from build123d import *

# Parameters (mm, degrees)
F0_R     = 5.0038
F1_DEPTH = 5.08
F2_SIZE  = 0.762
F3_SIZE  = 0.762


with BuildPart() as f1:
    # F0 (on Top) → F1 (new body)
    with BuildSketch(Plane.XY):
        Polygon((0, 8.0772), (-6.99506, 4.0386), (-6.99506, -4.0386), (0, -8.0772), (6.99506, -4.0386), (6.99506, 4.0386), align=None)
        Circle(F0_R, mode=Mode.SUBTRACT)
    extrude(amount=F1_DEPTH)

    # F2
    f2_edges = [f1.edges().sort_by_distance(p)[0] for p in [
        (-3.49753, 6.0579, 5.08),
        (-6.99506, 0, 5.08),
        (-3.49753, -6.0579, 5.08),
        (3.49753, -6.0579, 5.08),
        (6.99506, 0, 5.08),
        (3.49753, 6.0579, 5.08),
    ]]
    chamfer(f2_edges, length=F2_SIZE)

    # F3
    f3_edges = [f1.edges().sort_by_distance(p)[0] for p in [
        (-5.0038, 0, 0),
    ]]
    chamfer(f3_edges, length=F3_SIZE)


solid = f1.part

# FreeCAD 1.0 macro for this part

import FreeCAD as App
import Part
import Sketcher
Q = App.Units.Quantity


def edges_at(feature, points):
    """Names of the edges that pass closest to the given points."""
    edges = feature.Shape.Edges
    near = lambda p: min(range(len(edges)), key=lambda i: edges[i].distToShape(Part.Vertex(*p))[0])
    return sorted({f"Edge{near(p) + 1}" for p in points})


def add_polygon(sketch, points):
    """Adds a closed chain of lines whose ends are joined by coincident constraints."""
    first, n = sketch.GeometryCount, len(points)
    for a, b in zip(points, points[1:] + points[:1]):
        sketch.addGeometry(Part.LineSegment(App.Vector(*a, 0), App.Vector(*b, 0)), False)
    for i in range(n):
        sketch.addConstraint(Sketcher.Constraint("Coincident", first + i, 2, first + (i + 1) % n, 1))

doc = App.newDocument("Part")
body = doc.addObject("PartDesign::Body", "Body")

# Sketch on XY plane
sketch1 = doc.addObject("Sketcher::SketchObject", "Sketch")
body.addObject(sketch1)
sketch1.AttachmentSupport = (doc.XY_Plane, [""])
sketch1.MapMode = "FlatFace"
add_polygon(sketch1, [(0, 8), (-7, 4), (-7, -4), (0, -8), (7, -4), (7, 4)])  # lines 0-5
sketch1.addGeometry(Part.Circle(App.Vector(0, 0, 0), App.Vector(0, 0, 1), 5), False)  # 6
sketch1.addConstraint([
    Sketcher.Constraint("Vertical", 1),
    Sketcher.Constraint("Vertical", 4),
    Sketcher.Constraint("Coincident", 6, 3, -1, 1),
    Sketcher.Constraint("Symmetric", 0, 2, 3, 2, -1, 1),
    Sketcher.Constraint("Symmetric", 2, 2, 5, 2, -1, 1),
    Sketcher.Constraint("PointOnObject", 2, 2, -2),
    Sketcher.Constraint("Parallel", 2, 5),
    Sketcher.Constraint("Horizontal", 1, 2, 3, 2),
    Sketcher.Constraint("Diameter", 6, Q("0.394 in")),
    Sketcher.Constraint("Angle", 0, Q("-149.999999 deg")),
    Sketcher.Constraint("DistanceY", 1, 2, 1, 1, Q("0.318 in")),
    Sketcher.Constraint("Distance", 0, Q("0.318 in")),
])
pad1 = doc.addObject("PartDesign::Pad", "Pad")
body.addObject(pad1)
pad1.Profile = sketch1
pad1.Length = Q("0.2 in")
doc.recompute()

chamfer = doc.addObject("PartDesign::Chamfer", "Chamfer")
body.addObject(chamfer)
chamfer.Base = (pad1, edges_at(pad1, [
    (-3.498, 6.058, 5.08),
    (-6.995, 0, 5.08),
    (-3.498, -6.058, 5.08),
    (3.498, -6.058, 5.08),
    (6.995, 0, 5.08),
    (3.498, 6.058, 5.08),
]))
chamfer.Size = Q("0.03 in")
doc.recompute()

chamfer2 = doc.addObject("PartDesign::Chamfer", "Chamfer001")
body.addObject(chamfer2)
chamfer2.Base = (chamfer, edges_at(chamfer, [(-5.004, 0, 0)]))
chamfer2.Size = Q("0.03 in")

doc.recompute()
